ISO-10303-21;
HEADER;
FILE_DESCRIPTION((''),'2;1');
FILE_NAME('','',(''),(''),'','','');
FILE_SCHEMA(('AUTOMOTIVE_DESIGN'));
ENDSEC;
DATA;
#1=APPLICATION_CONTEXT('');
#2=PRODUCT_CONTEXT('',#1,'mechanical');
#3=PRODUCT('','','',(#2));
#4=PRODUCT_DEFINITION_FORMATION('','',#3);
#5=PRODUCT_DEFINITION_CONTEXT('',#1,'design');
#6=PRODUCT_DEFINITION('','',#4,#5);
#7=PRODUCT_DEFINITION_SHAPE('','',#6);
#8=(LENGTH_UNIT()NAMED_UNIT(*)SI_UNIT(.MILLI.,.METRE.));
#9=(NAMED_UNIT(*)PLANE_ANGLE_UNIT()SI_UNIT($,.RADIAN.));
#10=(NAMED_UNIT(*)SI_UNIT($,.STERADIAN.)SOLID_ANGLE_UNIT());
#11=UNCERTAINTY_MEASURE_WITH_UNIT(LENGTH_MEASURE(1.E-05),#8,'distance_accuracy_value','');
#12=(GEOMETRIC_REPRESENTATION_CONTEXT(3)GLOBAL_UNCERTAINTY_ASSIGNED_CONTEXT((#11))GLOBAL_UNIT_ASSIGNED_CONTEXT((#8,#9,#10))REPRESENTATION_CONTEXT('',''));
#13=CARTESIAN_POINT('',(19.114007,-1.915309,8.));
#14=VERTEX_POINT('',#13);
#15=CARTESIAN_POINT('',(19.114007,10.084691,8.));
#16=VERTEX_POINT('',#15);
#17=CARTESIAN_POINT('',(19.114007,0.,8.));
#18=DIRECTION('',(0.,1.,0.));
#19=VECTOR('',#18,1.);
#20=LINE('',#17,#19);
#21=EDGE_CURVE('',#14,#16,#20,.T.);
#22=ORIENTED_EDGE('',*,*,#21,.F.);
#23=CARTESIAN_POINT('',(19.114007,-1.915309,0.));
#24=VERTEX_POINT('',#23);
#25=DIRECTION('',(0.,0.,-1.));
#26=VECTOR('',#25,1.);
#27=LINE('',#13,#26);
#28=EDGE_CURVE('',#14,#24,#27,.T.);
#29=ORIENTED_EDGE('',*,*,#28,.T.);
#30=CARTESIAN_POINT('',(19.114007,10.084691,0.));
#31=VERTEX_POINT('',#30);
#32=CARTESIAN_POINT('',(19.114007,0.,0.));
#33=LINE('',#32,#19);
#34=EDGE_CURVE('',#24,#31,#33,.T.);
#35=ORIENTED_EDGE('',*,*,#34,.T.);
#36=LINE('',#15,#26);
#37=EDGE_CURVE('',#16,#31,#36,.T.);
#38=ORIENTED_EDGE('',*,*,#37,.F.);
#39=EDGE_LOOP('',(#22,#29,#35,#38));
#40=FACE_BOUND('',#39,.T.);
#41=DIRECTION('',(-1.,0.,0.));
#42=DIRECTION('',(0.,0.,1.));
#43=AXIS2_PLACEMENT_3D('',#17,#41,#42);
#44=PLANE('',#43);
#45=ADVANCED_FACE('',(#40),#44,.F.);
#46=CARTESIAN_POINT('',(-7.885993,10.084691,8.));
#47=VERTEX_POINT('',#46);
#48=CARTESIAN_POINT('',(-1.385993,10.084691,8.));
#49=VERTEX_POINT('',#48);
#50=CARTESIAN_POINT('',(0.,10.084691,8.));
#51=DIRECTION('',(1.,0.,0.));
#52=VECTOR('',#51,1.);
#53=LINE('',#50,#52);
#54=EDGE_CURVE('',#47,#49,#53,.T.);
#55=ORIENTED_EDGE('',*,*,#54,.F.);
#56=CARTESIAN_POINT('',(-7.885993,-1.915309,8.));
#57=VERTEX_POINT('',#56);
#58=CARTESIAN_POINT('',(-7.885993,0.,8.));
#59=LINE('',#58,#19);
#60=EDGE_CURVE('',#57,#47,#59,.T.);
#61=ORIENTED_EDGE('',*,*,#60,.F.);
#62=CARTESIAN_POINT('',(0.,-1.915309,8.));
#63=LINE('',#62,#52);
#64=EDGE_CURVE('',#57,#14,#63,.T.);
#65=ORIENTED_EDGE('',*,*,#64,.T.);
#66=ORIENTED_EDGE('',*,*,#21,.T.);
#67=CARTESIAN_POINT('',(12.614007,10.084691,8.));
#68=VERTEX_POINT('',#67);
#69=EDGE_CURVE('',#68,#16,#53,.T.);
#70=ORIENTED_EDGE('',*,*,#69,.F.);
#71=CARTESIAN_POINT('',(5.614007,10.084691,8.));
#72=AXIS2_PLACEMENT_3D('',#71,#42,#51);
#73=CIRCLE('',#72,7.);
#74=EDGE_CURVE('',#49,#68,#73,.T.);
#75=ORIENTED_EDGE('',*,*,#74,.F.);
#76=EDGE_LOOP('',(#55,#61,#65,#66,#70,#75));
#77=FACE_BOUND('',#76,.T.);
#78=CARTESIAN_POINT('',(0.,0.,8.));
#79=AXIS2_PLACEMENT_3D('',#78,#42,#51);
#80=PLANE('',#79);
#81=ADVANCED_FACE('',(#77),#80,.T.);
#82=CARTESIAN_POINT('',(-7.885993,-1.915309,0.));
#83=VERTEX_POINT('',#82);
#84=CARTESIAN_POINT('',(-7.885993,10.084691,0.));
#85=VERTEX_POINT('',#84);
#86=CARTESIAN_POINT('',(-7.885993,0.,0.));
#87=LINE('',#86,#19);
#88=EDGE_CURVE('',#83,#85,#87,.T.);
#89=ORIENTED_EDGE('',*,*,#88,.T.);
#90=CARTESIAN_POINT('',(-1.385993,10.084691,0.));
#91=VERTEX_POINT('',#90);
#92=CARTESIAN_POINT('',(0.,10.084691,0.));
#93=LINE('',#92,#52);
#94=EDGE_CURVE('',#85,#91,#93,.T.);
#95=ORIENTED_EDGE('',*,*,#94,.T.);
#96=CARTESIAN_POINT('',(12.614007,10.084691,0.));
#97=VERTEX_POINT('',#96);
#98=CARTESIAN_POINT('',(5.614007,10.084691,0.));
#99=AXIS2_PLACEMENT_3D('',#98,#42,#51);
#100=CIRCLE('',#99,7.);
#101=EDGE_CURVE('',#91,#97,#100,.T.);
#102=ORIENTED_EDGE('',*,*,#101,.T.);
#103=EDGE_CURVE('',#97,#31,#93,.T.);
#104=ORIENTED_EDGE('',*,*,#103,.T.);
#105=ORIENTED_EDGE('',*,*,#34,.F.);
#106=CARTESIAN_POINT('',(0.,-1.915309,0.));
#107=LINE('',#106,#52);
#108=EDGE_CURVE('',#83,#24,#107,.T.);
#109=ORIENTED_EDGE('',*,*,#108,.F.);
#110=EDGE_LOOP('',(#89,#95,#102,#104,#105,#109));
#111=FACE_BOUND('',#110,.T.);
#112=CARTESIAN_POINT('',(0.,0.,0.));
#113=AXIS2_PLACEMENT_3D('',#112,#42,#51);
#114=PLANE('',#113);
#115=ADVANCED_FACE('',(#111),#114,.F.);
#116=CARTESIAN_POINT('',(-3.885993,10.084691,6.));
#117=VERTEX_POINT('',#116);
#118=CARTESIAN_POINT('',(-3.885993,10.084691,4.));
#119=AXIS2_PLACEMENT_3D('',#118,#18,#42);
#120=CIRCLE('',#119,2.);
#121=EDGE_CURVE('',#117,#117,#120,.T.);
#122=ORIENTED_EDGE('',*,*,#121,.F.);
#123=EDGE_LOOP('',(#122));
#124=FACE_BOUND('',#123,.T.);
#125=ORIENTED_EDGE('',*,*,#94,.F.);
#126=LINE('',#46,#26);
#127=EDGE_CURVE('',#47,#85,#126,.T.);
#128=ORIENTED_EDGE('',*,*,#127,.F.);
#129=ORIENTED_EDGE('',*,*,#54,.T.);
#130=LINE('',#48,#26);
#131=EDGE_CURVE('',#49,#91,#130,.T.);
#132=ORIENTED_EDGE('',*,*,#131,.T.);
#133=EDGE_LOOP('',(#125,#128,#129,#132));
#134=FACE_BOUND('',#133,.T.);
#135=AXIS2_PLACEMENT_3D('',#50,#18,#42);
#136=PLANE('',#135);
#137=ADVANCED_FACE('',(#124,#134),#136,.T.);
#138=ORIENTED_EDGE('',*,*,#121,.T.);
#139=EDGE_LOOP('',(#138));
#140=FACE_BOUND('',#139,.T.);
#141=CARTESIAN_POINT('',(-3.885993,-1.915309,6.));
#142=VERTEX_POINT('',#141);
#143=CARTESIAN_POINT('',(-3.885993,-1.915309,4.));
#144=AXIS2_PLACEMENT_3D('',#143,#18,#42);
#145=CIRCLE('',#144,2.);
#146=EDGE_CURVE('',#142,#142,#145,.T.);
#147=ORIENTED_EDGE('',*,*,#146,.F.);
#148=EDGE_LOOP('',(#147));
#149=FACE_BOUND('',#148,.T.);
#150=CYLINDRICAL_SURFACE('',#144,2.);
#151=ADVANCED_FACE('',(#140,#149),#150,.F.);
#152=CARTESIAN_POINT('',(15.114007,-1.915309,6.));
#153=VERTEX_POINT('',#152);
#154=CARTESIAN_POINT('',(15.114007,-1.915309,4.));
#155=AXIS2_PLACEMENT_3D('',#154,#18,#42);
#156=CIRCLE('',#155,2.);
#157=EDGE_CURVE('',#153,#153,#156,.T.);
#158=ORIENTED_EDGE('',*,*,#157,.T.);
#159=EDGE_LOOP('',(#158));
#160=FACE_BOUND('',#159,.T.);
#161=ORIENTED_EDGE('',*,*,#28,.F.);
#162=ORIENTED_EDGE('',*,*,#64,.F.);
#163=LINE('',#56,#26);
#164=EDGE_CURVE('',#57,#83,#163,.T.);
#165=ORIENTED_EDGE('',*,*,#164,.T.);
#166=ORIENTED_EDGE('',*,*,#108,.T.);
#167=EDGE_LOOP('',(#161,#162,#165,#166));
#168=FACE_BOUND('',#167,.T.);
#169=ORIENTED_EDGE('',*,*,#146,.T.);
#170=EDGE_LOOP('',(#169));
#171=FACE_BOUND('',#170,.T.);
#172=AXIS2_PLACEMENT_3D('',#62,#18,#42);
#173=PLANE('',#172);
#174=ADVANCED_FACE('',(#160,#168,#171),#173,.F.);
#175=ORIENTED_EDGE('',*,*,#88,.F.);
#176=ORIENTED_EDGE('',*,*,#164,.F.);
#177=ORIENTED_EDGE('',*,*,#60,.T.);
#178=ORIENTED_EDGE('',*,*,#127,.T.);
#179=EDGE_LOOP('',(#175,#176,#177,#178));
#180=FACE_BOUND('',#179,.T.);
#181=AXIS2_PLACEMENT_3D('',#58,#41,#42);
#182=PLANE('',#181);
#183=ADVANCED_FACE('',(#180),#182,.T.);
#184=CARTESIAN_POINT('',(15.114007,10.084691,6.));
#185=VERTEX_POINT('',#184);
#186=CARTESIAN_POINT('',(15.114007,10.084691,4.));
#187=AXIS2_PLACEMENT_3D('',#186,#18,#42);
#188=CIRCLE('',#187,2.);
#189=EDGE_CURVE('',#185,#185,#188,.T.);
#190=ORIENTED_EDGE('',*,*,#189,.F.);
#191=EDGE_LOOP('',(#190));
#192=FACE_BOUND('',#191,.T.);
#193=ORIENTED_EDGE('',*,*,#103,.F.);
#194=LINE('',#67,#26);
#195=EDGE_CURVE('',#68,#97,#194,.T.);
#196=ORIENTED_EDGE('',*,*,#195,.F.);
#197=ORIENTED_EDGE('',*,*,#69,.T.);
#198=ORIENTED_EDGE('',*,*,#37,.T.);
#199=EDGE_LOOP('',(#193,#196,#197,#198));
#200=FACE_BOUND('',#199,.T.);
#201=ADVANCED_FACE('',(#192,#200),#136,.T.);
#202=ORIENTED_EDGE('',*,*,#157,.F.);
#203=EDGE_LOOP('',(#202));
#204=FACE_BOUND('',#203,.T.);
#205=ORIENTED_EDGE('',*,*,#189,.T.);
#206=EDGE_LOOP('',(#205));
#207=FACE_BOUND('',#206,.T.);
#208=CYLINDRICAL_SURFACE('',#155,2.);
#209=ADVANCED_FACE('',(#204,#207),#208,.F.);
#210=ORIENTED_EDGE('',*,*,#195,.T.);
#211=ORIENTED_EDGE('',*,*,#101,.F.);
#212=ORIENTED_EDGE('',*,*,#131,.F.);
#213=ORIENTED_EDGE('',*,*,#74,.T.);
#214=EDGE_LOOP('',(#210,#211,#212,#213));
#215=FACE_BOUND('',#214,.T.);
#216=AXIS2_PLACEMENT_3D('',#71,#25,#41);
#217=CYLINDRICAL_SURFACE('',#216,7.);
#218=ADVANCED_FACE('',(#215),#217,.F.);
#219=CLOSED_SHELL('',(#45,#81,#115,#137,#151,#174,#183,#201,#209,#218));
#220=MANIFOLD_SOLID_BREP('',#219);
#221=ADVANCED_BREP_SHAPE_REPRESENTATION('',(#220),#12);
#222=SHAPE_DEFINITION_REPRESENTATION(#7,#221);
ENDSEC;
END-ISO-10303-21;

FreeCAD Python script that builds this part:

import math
import FreeCAD as App
import Part
import Sketcher

V = App.Vector

doc = App.newDocument("Part")
body = doc.addObject("PartDesign::Body", "Body")

# Sketch on XY plane
sketch1 = body.newObject("Sketcher::SketchObject", "Sketch")
sketch1.AttachmentSupport = (doc.getObject("XY_Plane"), [""])
sketch1.MapMode = "FlatFace"
sketch1.addGeometry([
    Part.LineSegment(V(-8, 10, 0), V(-8, -2, 0)),  # 0
    Part.LineSegment(V(-8, -2, 0), V(19, -2, 0)),  # 1
    Part.LineSegment(V(19, -2, 0), V(19, 10, 0)),  # 2
    Part.LineSegment(V(19, 10, 0), V(13, 10, 0)),  # 3
    Part.ArcOfCircle(Part.Circle(V(6, 10, 0), V(0, 0, 1), 7), math.radians(180), math.radians(360)),  # 4
    Part.LineSegment(V(-1, 10, 0), V(-8, 10, 0)),  # 5
], False)
sketch1.addConstraint([
    Sketcher.Constraint("Coincident", 0, 2, 1, 1),
    Sketcher.Constraint("Coincident", 1, 2, 2, 1),
    Sketcher.Constraint("Coincident", 2, 2, 3, 1),
    Sketcher.Constraint("Coincident", 3, 2, 4, 2),
    Sketcher.Constraint("Coincident", 4, 1, 5, 1),
    Sketcher.Constraint("Coincident", 5, 2, 0, 1),
    Sketcher.Constraint("Vertical", 0),
    Sketcher.Constraint("Horizontal", 1),
    Sketcher.Constraint("Vertical", 2),
    Sketcher.Constraint("Horizontal", 3),
    Sketcher.Constraint("Horizontal", 5),
    Sketcher.Constraint("Horizontal", 4, 3, 2, 2),
    Sketcher.Constraint("Horizontal", 3, 2, 4, 1),
    Sketcher.Constraint("Equal", 3, 5),
    Sketcher.Constraint("Radius", 4, 7.0),
    Sketcher.Constraint("DistanceX", 1, 1, 1, 2, 27.0),
    Sketcher.Constraint("DistanceY", 0, 2, 0, 1, 12.0),
    Sketcher.Constraint("DistanceY", -1, 1, 4, 3, 10.084691),
    Sketcher.Constraint("DistanceX", -1, 1, 4, 3, 5.614007),
])
pad1 = body.newObject("PartDesign::Pad", "Pad")
pad1.Profile = sketch1
pad1.Length = 8

# Sketch on XZ plane
sketch2 = body.newObject("Sketcher::SketchObject", "Sketch001")
sketch2.AttachmentSupport = (doc.getObject("XZ_Plane"), [""])
sketch2.MapMode = "FlatFace"
sketch2.AttachmentOffset = App.Placement(V(0, 0, -10.084691), App.Rotation())
sketch2.addGeometry([
    Part.Circle(V(-3.9, 4, 0), V(0, 0, 1), 2),
    Part.Circle(V(15.1, 4, 0), V(0, 0, 1), 2),
], False)
sketch2.addConstraint([
    Sketcher.Constraint("Equal", 0, 1),
    Sketcher.Constraint("Horizontal", 0, 3, 1, 3),
    Sketcher.Constraint("Diameter", 0, 4.0),
    Sketcher.Constraint("DistanceY", -1, 1, 0, 3, 4.0),
    Sketcher.Constraint("DistanceX", 0, 3, 1, 3, 19.0),
    Sketcher.Constraint("DistanceX", 0, 3, -1, 1, 3.885993),
])
pocket1 = body.newObject("PartDesign::Pocket", "Pocket")
pocket1.Profile = sketch2
pocket1.Type = "ThroughAll"
pocket1.Reversed = True

doc.recompute()
